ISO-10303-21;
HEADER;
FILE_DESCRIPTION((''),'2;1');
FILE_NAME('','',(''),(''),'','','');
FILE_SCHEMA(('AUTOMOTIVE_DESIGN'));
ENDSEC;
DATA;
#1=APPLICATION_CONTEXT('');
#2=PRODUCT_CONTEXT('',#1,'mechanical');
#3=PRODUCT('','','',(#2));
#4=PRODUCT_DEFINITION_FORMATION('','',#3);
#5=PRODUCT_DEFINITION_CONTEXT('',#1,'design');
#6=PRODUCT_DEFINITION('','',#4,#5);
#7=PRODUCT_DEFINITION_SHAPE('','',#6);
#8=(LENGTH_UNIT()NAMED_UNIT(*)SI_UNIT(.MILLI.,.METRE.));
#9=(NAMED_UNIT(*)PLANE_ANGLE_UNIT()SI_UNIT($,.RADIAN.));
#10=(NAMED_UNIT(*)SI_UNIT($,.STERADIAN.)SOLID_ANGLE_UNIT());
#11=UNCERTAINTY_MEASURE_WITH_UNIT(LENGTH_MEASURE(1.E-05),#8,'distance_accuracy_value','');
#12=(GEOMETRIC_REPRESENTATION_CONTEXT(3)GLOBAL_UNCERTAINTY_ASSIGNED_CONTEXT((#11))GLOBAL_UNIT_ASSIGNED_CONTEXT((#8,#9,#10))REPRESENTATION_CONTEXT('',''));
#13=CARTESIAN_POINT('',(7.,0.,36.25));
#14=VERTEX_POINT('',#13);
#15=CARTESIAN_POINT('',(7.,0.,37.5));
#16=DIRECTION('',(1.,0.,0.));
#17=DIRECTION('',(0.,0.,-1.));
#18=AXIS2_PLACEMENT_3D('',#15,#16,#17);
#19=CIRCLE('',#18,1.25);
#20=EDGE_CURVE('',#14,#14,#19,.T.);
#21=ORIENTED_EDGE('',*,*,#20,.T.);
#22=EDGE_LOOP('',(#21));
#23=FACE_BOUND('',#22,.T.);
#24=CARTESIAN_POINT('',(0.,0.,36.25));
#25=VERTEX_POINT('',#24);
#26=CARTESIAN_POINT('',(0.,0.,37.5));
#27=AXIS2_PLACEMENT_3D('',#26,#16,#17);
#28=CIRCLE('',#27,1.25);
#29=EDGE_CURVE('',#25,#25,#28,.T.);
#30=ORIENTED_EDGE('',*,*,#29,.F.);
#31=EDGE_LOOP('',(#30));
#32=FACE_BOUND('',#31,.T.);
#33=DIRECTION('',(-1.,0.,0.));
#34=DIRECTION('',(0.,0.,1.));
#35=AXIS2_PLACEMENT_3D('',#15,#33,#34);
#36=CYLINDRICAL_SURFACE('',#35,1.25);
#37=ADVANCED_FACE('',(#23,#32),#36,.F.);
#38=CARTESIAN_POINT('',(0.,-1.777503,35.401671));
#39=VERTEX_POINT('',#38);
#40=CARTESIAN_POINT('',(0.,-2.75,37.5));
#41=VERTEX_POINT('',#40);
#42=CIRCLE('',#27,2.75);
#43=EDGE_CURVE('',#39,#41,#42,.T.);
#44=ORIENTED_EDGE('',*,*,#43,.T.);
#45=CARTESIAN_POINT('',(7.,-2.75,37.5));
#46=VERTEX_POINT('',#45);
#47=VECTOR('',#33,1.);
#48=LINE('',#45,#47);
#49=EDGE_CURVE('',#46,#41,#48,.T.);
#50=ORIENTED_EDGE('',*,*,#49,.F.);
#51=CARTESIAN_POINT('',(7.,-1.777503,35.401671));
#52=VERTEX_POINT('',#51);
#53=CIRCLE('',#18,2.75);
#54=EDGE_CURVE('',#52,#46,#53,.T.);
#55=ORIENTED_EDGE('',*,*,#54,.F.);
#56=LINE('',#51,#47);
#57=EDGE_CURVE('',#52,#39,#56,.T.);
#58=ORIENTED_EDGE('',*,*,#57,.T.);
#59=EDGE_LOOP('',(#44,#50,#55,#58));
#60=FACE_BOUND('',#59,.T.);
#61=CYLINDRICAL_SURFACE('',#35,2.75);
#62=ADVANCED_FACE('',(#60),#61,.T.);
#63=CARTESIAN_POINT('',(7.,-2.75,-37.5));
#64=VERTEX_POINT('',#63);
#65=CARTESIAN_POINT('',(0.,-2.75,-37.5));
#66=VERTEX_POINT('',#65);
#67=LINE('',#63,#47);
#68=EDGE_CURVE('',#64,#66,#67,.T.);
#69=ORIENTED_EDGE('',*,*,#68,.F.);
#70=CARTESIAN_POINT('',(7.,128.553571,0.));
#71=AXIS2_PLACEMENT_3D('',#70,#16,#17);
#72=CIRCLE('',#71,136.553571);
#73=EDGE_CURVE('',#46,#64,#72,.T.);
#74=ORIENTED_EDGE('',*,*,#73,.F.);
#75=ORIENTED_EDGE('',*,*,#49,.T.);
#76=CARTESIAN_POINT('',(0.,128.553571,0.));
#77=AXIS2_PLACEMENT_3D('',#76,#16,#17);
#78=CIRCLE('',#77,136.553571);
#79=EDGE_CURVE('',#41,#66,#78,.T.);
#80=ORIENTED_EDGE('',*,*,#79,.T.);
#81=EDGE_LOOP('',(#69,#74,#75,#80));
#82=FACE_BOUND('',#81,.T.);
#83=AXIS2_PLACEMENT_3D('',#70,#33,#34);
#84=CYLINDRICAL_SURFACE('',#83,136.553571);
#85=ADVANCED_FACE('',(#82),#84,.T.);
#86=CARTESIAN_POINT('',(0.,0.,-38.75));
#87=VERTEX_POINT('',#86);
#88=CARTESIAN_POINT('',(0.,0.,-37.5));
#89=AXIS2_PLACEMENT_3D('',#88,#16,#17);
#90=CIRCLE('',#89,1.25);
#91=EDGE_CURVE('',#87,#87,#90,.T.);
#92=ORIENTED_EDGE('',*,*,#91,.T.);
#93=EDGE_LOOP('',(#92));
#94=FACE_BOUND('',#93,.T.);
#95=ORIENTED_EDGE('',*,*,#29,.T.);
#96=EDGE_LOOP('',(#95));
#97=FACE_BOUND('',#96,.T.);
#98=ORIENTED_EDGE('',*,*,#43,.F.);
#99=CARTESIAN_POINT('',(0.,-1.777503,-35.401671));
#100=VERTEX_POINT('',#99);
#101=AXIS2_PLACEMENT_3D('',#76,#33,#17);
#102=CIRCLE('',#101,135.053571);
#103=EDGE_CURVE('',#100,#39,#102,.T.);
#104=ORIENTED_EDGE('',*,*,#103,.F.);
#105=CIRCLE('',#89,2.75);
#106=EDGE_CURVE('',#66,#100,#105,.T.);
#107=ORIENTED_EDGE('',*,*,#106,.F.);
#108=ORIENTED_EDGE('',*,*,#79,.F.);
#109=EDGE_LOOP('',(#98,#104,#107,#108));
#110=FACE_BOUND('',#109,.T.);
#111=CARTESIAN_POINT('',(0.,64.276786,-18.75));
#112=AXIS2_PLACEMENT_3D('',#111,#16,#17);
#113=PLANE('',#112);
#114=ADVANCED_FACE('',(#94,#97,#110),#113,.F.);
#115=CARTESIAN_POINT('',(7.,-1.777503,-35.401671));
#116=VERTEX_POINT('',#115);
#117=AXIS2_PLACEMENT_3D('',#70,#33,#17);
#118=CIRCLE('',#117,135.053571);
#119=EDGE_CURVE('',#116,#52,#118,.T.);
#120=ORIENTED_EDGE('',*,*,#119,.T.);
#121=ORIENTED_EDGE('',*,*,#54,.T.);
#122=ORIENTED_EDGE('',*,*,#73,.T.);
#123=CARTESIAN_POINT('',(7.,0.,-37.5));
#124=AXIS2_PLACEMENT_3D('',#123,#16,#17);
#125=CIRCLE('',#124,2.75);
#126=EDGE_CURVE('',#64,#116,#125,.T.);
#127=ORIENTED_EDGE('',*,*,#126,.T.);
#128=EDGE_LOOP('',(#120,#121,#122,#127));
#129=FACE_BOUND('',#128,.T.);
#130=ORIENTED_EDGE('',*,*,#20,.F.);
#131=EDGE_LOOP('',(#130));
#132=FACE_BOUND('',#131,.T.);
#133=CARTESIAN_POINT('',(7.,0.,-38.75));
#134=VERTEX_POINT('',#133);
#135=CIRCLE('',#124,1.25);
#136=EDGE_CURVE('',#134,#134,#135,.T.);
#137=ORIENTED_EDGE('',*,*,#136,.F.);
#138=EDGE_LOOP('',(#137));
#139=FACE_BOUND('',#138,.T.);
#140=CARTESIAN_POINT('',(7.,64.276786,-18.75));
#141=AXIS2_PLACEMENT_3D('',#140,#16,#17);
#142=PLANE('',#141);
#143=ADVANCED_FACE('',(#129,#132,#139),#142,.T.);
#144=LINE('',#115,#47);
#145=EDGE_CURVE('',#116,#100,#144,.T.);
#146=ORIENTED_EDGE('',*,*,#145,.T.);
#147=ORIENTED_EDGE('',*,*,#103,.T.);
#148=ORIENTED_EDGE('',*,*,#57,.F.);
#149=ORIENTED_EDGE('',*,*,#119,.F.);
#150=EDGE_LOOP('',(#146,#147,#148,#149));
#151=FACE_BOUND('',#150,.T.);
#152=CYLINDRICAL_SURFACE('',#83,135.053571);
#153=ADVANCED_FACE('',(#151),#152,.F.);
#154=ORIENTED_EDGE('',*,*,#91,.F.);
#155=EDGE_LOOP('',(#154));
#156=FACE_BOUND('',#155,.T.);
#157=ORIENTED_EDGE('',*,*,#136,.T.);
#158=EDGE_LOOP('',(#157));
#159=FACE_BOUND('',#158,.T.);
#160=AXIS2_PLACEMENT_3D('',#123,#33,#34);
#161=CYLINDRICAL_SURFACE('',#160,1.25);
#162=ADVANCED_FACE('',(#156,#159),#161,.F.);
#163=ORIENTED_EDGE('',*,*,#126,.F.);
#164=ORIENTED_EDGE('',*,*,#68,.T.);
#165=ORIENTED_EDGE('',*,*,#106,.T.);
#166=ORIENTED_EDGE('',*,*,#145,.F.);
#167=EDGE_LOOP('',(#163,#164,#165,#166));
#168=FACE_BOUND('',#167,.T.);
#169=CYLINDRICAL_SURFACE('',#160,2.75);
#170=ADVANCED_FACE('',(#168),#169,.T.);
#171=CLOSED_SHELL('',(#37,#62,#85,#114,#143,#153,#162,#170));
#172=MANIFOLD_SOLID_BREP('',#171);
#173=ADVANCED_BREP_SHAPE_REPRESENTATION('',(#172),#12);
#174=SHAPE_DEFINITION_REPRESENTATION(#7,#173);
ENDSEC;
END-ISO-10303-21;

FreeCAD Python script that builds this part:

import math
import FreeCAD as App
import Part
import Sketcher
from FreeCAD import Vector

doc = App.newDocument("Part")
body = doc.addObject("PartDesign::Body", "Body")

# Sketch on YZ plane
sketch1 = body.newObject("Sketcher::SketchObject", "Sketch")
sketch1.AttachmentSupport = (doc.getObject("YZ_Plane"), [""])
sketch1.MapMode = "FlatFace"
sketch1.addGeometry([
    Part.ArcOfCircle(Part.Circle(Vector(0, 37.5, 0), Vector(0, 0, 1), 2.75), math.radians(-130.268063), math.radians(180)),  # 0
    Part.ArcOfCircle(Part.Circle(Vector(128.553571, 0, 0), Vector(0, 0, 1), 136.553571), math.radians(164.060779), math.radians(195.939221)),  # 1
    Part.ArcOfCircle(Part.Circle(Vector(0, -37.5, 0), Vector(0, 0, 1), 2.75), math.radians(180), math.radians(490.268063)),  # 2
    Part.ArcOfCircle(Part.Circle(Vector(128.553571, 0, 0), Vector(0, 0, 1), 135.053571), math.radians(164.803479), math.radians(195.196521)),  # 3
    Part.Circle(Vector(0, 37.5, 0), Vector(0, 0, 1), 1.25),  # 4
    Part.Circle(Vector(0, -37.5, 0), Vector(0, 0, 1), 1.25),  # 5
], False)
sketch1.addConstraint([
    Sketcher.Constraint("Coincident", 0, 2, 1, 1),
    Sketcher.Constraint("Coincident", 1, 2, 2, 1),
    Sketcher.Constraint("Coincident", 2, 2, 3, 2),
    Sketcher.Constraint("Coincident", 3, 1, 0, 1),
    Sketcher.Constraint("Coincident", 3, 3, 1, 3),
    Sketcher.Constraint("Coincident", 4, 3, 0, 3),
    Sketcher.Constraint("Coincident", 5, 3, 2, 3),
    Sketcher.Constraint("Equal", 0, 2),
    Sketcher.Constraint("Equal", 4, 5),
    Sketcher.Constraint("Symmetric", 0, 3, 2, 3, -1, 1),
    Sketcher.Constraint("Symmetric", 0, 2, 1, 2, -1),
    Sketcher.Constraint("Horizontal", 4, 3, 0, 2),
    Sketcher.Constraint("Diameter", 4, 2.5),
    Sketcher.Constraint("Radius", 0, 2.75),
    Sketcher.Constraint("DistanceY", 2, 3, 0, 3, 75.0),
    Sketcher.Constraint("Radius", 1, 136.553571),
    Sketcher.Constraint("Radius", 3, 135.053571),
])
pad1 = body.newObject("PartDesign::Pad", "Pad")
pad1.Profile = sketch1
pad1.Length = 7

doc.recompute()
